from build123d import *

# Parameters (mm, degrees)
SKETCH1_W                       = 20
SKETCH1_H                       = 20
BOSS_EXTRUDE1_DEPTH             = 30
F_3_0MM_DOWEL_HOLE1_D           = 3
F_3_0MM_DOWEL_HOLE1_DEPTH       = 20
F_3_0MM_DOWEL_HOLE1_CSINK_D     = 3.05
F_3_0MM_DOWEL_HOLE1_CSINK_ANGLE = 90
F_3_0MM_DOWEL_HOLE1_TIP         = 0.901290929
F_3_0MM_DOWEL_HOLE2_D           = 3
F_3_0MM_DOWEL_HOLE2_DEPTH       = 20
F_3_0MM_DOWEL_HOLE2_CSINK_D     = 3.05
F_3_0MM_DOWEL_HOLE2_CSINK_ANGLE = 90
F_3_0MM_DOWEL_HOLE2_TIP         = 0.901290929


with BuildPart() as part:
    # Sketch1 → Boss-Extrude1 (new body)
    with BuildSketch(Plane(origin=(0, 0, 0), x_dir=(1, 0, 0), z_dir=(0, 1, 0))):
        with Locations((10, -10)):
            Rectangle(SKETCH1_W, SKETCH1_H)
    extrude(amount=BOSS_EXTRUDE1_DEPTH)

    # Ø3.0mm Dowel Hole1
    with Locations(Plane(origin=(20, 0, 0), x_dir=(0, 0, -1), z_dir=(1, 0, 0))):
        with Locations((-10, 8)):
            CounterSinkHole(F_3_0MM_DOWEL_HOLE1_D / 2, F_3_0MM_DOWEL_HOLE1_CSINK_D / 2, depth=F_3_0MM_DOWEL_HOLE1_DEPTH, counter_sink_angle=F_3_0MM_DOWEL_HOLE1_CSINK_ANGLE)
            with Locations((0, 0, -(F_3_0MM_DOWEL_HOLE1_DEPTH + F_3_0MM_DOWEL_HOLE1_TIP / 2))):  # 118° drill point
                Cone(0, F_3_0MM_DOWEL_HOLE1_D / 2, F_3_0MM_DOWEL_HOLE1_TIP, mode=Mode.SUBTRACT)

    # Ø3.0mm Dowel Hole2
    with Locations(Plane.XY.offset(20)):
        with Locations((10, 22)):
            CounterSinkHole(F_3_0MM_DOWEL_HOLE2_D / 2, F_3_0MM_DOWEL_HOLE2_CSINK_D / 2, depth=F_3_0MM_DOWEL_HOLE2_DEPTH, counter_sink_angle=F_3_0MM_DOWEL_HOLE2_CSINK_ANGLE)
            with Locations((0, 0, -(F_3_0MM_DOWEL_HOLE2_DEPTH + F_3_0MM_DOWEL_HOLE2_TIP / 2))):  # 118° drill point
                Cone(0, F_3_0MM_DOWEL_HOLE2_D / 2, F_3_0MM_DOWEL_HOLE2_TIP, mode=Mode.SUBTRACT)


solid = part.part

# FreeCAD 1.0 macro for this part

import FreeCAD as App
import Part
import Sketcher
Q = App.Units.Quantity


def add_polygon(sketch, points):
    """Adds a closed chain of lines whose ends are joined by coincident constraints."""
    first, n = sketch.GeometryCount, len(points)
    for a, b in zip(points, points[1:] + points[:1]):
        sketch.addGeometry(Part.LineSegment(App.Vector(*a, 0), App.Vector(*b, 0)), False)
    for i in range(n):
        sketch.addConstraint(Sketcher.Constraint("Coincident", first + i, 2, first + (i + 1) % n, 1))

doc = App.newDocument("Part")
body = doc.addObject("PartDesign::Body", "Body")

# Sketch on XZ plane
sketch1 = doc.addObject("Sketcher::SketchObject", "Sketch")
body.addObject(sketch1)
sketch1.AttachmentSupport = (doc.XZ_Plane, [""])
sketch1.MapMode = "FlatFace"
add_polygon(sketch1, [(0, 0), (0, 20), (20, 20), (20, 0)])  # lines 0-3
sketch1.addConstraint([
    Sketcher.Constraint("Vertical", 0),
    Sketcher.Constraint("Horizontal", 1),
    Sketcher.Constraint("Vertical", 2),
    Sketcher.Constraint("Horizontal", 3),
    Sketcher.Constraint("Coincident", 3, 2, -1, 1),
    Sketcher.Constraint("Equal", 3, 0),
    Sketcher.Constraint("DistanceX", 1, 1, 1, 2, Q("20 mm")),
])
pad1 = doc.addObject("PartDesign::Pad", "Pad")
body.addObject(pad1)
pad1.Profile = sketch1
pad1.Length = 30
pad1.Reversed = True

# Sketch on YZ plane
sketch2 = doc.addObject("Sketcher::SketchObject", "Sketch001")
body.addObject(sketch2)
sketch2.AttachmentSupport = (doc.YZ_Plane, [""])
sketch2.MapMode = "FlatFace"
sketch2.AttachmentOffset = App.Placement(App.Vector(0, 0, 20), App.Rotation())
sketch2.addGeometry(Part.Circle(App.Vector(8, 10, 0), App.Vector(0, 0, 1), 1.5), False)
sketch2.addConstraint([
    Sketcher.Constraint("Diameter", 0, Q("3 mm")),
    Sketcher.Constraint("DistanceX", -1, 1, 0, 3, Q("8 mm")),
    Sketcher.Constraint("DistanceY", -1, 1, 0, 3, Q("10 mm")),
])
doc.recompute()
hole = doc.addObject("PartDesign::Hole", "Hole")
body.addObject(hole)
hole.Profile = sketch2
hole.ThreadType = "None"
hole.Diameter = 3
hole.DepthType = "Dimension"
hole.Depth = 20
hole.DrillPoint = "Angled"
hole.DrillPointAngle = 118
hole.HoleCutType = "Countersink"
hole.HoleCutDiameter = 3.05
hole.HoleCutCountersinkAngle = 90

# Sketch on XY plane
sketch3 = doc.addObject("Sketcher::SketchObject", "Sketch002")
body.addObject(sketch3)
sketch3.AttachmentSupport = (doc.XY_Plane, [""])
sketch3.MapMode = "FlatFace"
sketch3.AttachmentOffset = App.Placement(App.Vector(0, 0, 20), App.Rotation())
sketch3.addGeometry(Part.Circle(App.Vector(10, 22, 0), App.Vector(0, 0, 1), 1.5), False)
sketch3.addConstraint([
    Sketcher.Constraint("Diameter", 0, Q("3 mm")),
    Sketcher.Constraint("DistanceX", -1, 1, 0, 3, Q("10 mm")),
    Sketcher.Constraint("DistanceY", -1, 1, 0, 3, Q("22 mm")),
])
doc.recompute()
hole2 = doc.addObject("PartDesign::Hole", "Hole001")
body.addObject(hole2)
hole2.Profile = sketch3
hole2.ThreadType = "None"
hole2.Diameter = 3
hole2.DepthType = "Dimension"
hole2.Depth = 20
hole2.DrillPoint = "Angled"
hole2.DrillPointAngle = 118
hole2.HoleCutType = "Countersink"
hole2.HoleCutDiameter = 3.05
hole2.HoleCutCountersinkAngle = 90

doc.recompute()
